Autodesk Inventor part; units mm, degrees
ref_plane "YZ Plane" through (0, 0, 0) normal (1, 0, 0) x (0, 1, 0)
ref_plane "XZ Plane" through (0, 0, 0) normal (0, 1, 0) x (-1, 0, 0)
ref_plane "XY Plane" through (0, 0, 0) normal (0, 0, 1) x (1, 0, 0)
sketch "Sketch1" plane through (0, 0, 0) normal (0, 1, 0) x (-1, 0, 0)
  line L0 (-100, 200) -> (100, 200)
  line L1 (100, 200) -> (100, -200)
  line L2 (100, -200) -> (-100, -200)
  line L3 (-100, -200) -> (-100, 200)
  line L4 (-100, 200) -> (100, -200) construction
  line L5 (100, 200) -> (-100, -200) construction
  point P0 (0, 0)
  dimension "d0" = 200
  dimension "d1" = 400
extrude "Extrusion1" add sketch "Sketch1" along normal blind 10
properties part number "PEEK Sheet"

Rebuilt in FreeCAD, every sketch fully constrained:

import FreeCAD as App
import Part
import Sketcher


def add_polygon(sketch, points):
    """Adds a closed chain of lines whose ends are joined by coincident constraints."""
    first, n = sketch.GeometryCount, len(points)
    for a, b in zip(points, points[1:] + points[:1]):
        sketch.addGeometry(Part.LineSegment(App.Vector(*a, 0), App.Vector(*b, 0)), False)
    for i in range(n):
        sketch.addConstraint(Sketcher.Constraint("Coincident", first + i, 2, first + (i + 1) % n, 1))

doc = App.newDocument("Part")
body = doc.addObject("PartDesign::Body", "Body")

sketch1 = doc.addObject("Sketcher::SketchObject", "Sketch")
body.addObject(sketch1)
sketch1.AttachmentSupport = (doc.XZ_Plane, [""])
sketch1.MapMode = "FlatFace"
add_polygon(sketch1, [(-100, 200), (100, 200), (100, -200), (-100, -200)])
sketch1.addConstraint(Sketcher.Constraint("Horizontal", 0))
sketch1.addConstraint(Sketcher.Constraint("Vertical", 1))
sketch1.addConstraint(Sketcher.Constraint("Horizontal", 2))
sketch1.addConstraint(Sketcher.Constraint("Vertical", 3))
sketch1.addConstraint(Sketcher.Constraint("Symmetric", 0, 2, 2, 2, -1, 1))
sketch1.addConstraint(Sketcher.Constraint("DistanceX", 0, 1, 0, 2, 200.0))
sketch1.addConstraint(Sketcher.Constraint("DistanceY", 1, 2, 1, 1, 400.0))
pad1 = doc.addObject("PartDesign::Pad", "Pad")
body.addObject(pad1)
pad1.Profile = sketch1
pad1.Length = 10
pad1.Reversed = True

doc.recompute()
